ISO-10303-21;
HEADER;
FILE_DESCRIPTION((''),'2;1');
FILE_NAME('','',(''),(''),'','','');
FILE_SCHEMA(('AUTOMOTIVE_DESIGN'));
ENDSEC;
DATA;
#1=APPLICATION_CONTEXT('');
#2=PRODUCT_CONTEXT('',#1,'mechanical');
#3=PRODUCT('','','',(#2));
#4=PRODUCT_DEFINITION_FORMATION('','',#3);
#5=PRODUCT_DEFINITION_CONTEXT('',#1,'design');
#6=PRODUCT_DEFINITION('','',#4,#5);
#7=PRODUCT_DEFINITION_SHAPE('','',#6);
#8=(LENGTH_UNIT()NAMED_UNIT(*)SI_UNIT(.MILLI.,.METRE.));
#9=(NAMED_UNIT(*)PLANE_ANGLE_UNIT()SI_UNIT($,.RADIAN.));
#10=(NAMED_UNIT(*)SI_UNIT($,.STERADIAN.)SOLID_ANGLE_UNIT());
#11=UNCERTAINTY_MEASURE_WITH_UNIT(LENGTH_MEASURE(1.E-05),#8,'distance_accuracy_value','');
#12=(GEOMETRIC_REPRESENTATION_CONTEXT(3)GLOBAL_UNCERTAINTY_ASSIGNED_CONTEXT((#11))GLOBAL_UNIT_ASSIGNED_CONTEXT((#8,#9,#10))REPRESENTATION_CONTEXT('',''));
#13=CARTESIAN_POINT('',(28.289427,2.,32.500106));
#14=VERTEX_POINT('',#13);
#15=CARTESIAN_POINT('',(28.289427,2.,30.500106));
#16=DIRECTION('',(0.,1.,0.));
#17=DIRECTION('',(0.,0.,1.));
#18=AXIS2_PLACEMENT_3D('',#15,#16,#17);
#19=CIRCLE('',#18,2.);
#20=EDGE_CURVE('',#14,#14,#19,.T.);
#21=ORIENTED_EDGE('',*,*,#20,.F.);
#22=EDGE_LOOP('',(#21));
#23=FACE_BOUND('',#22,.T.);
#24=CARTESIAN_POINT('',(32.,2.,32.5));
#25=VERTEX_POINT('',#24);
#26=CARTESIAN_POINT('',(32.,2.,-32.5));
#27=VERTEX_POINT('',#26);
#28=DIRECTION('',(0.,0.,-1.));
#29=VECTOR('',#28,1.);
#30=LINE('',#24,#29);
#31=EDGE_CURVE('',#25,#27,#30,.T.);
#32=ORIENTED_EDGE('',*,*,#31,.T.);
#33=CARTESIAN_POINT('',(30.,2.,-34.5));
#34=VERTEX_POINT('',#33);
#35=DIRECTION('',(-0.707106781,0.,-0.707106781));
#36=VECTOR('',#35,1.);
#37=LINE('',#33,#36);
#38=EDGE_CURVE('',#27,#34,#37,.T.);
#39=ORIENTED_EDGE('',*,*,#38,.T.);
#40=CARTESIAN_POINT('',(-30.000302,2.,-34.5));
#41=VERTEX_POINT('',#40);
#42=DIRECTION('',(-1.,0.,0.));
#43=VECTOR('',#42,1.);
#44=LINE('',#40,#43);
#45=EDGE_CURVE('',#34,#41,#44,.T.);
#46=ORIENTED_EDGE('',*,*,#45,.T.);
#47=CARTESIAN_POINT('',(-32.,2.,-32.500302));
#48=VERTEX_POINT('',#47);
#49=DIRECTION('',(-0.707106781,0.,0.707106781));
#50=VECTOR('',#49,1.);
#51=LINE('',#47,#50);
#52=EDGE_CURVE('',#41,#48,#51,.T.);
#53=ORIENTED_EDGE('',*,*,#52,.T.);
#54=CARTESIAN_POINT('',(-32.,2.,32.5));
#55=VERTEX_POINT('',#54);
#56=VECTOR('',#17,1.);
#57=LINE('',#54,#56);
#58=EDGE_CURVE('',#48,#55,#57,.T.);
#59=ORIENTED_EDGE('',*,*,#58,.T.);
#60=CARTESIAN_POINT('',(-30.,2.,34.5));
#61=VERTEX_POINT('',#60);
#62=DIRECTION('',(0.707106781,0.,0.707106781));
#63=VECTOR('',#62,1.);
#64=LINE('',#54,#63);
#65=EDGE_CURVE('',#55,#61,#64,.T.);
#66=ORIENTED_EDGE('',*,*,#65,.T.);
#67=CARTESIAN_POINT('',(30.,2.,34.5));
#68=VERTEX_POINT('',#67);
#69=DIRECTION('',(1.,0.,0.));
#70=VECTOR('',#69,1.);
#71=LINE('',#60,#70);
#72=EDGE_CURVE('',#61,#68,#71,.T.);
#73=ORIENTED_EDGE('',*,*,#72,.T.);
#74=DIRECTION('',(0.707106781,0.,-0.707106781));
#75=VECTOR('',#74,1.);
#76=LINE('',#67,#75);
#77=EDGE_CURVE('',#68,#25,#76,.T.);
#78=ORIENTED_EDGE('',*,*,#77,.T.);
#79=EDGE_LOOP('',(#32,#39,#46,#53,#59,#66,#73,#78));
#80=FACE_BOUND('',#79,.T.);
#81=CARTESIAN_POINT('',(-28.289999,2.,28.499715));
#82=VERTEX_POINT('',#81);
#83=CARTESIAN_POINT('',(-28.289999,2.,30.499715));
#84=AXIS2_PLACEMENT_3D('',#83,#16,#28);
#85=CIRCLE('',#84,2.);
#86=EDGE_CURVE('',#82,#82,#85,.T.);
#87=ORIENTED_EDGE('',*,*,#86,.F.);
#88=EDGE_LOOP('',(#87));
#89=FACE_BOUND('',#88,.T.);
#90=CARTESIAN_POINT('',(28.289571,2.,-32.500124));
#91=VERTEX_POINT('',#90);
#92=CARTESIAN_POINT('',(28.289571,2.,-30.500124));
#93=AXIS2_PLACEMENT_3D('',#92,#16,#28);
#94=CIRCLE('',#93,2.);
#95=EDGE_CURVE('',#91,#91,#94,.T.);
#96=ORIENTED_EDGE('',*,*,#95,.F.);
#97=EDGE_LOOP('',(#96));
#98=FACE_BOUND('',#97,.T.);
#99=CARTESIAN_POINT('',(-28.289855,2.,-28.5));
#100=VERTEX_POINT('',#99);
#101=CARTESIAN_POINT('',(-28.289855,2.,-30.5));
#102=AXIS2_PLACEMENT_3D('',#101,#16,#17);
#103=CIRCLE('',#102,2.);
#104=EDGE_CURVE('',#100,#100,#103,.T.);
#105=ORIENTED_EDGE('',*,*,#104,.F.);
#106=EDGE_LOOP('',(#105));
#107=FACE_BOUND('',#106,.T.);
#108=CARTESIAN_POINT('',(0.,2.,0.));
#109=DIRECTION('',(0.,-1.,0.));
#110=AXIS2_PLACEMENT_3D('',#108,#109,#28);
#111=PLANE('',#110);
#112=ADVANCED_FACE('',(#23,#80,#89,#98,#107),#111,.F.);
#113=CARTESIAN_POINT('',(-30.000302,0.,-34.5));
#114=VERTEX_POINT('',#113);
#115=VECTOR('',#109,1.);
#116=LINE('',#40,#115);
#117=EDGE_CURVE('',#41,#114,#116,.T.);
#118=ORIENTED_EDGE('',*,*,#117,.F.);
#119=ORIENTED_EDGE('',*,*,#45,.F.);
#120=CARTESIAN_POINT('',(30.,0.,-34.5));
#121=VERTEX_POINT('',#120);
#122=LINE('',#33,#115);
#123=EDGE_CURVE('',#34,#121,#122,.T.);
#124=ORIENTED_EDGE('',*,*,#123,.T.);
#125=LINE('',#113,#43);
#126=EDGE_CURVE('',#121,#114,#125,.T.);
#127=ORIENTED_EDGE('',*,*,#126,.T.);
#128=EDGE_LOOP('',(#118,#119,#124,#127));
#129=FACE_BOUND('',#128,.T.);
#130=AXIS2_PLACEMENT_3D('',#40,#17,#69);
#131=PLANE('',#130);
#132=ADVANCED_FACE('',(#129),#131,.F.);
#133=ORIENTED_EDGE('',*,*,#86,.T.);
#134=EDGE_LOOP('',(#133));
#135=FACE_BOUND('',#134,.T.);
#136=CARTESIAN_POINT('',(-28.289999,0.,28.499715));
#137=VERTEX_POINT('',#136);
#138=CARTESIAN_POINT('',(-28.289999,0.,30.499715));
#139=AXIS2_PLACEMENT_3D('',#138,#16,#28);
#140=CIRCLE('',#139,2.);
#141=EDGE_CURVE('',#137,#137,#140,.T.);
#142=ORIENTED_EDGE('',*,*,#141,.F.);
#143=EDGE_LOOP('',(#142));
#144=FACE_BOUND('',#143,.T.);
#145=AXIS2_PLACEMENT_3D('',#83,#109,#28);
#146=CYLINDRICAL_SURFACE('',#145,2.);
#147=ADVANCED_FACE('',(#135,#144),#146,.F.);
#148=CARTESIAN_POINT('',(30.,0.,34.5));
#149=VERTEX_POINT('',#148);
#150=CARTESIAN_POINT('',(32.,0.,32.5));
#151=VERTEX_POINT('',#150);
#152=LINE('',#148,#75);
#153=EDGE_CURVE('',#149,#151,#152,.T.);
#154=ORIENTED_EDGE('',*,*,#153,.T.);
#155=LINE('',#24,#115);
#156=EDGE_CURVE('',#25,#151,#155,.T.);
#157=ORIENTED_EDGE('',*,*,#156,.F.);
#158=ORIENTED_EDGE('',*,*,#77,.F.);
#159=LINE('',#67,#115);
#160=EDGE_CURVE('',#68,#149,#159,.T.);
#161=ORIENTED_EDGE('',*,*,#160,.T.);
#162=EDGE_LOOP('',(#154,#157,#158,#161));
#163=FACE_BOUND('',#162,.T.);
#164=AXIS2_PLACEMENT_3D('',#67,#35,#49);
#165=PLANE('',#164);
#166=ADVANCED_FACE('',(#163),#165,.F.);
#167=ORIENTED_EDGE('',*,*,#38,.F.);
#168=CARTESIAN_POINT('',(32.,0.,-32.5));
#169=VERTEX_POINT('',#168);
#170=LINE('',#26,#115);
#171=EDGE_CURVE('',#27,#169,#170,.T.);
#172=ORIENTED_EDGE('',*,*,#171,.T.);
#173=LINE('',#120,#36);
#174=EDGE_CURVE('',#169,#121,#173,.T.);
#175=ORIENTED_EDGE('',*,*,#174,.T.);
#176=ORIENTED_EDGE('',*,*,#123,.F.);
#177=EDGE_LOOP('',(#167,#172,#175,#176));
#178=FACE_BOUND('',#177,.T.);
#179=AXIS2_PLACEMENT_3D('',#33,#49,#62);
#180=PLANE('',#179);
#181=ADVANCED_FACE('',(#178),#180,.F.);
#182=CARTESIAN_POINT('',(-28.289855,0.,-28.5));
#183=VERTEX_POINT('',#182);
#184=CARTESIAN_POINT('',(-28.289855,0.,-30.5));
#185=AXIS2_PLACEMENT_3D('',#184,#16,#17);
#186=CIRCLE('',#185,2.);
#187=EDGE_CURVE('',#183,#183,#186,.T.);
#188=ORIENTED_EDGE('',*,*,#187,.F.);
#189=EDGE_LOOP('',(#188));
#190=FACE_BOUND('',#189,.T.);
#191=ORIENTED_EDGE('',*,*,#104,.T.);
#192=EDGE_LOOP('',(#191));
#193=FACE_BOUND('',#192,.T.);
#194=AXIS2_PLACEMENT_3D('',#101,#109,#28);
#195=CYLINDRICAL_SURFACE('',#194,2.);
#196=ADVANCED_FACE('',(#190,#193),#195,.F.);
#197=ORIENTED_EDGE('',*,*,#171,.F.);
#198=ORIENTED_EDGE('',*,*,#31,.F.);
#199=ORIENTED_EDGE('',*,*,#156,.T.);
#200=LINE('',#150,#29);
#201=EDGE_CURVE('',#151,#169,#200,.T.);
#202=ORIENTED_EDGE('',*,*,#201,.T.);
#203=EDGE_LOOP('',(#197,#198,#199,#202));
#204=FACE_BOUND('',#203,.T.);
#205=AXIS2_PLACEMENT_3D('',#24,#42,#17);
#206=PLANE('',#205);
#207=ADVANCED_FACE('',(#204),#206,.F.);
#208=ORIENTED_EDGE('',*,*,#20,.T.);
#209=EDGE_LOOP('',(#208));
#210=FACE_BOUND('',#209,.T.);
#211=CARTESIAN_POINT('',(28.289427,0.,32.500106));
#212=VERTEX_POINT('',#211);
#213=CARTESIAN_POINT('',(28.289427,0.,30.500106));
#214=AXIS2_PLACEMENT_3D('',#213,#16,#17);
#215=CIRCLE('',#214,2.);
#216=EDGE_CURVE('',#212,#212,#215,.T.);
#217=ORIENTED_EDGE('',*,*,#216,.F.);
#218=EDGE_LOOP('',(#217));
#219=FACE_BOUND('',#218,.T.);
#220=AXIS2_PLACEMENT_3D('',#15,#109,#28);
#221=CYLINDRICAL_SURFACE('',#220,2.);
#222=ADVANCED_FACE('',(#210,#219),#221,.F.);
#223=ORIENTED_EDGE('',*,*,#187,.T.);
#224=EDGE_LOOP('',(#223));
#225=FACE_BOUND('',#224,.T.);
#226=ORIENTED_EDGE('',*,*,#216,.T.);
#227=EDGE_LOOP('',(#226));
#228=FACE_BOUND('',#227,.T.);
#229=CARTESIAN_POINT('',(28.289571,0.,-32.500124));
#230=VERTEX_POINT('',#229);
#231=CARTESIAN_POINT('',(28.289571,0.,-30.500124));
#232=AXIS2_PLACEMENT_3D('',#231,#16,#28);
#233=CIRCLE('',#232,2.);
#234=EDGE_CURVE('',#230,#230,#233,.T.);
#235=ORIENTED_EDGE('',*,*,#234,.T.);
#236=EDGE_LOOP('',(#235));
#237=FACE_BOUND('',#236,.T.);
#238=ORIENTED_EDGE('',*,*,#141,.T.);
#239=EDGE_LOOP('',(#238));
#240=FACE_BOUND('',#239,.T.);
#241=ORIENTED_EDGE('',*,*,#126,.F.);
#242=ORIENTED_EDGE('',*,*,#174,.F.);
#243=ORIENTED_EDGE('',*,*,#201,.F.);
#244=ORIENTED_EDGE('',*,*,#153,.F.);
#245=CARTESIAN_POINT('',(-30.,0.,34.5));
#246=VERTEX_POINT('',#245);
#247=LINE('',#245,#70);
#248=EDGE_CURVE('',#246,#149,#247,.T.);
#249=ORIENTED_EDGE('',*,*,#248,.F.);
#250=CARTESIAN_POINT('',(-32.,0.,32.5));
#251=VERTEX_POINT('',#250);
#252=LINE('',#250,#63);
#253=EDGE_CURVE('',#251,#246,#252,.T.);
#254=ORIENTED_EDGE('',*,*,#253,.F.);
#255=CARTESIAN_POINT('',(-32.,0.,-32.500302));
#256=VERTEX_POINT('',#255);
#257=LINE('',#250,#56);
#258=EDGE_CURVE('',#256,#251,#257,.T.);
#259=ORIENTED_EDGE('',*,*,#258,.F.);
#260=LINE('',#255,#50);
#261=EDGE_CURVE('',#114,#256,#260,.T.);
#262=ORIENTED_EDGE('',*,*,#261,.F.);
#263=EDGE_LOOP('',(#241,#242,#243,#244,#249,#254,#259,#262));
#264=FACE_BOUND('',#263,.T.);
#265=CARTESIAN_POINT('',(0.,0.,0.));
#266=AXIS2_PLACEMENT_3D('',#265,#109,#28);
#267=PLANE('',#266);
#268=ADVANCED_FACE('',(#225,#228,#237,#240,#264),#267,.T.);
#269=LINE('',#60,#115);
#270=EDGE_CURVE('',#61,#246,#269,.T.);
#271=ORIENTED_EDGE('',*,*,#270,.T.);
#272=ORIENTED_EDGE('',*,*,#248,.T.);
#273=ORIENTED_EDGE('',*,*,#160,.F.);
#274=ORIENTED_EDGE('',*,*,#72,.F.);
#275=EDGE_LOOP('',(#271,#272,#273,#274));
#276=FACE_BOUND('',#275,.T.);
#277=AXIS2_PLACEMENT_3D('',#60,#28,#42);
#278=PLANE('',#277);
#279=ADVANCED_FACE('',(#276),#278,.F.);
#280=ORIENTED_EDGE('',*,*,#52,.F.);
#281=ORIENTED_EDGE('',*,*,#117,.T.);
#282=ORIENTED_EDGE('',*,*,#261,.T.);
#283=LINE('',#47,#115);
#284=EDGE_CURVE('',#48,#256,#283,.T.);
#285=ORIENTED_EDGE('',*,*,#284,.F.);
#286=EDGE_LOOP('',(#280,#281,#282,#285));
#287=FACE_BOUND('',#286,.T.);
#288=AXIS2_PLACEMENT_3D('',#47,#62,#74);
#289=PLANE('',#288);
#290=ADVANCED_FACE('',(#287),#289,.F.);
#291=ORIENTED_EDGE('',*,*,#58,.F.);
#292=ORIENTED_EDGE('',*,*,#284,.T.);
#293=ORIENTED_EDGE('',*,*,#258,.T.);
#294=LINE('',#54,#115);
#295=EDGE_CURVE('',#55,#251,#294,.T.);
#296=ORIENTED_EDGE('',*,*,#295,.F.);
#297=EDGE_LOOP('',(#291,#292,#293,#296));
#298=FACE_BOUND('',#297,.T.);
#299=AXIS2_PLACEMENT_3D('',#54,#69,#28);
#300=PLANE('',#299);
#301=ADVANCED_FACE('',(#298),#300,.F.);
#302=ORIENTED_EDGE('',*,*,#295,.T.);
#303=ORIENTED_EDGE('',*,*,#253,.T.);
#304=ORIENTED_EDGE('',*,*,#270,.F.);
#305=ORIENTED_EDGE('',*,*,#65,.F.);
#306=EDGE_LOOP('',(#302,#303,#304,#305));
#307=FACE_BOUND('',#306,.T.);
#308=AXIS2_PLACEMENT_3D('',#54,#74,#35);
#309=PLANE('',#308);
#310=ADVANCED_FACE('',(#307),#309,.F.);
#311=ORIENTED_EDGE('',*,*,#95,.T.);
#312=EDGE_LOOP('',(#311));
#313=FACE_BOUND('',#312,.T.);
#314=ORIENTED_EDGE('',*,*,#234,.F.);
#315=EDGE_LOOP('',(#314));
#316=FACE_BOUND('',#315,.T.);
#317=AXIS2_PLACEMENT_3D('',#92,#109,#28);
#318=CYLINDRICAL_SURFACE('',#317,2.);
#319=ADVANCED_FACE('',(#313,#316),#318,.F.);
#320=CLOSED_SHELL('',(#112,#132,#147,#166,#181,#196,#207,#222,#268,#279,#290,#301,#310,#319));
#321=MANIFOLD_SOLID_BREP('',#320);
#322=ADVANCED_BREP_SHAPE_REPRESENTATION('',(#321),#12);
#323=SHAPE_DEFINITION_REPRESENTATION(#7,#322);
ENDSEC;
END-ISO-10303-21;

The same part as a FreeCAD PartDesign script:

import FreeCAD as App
import Part
import Sketcher
Q = App.Units.Quantity

doc = App.newDocument("Part")
body = doc.addObject("PartDesign::Body", "Body")

# Sketch on XZ plane
sketch1 = body.newObject("Sketcher::SketchObject", "Sketch")
sketch1.AttachmentSupport = (doc.getObject("XZ_Plane"), [""])
sketch1.MapMode = "FlatFace"
sketch1.addGeometry(Part.LineSegment(App.Vector(-30, -34.5, 0), App.Vector(-32, -32.5, 0)), False)
sketch1.addGeometry(Part.LineSegment(App.Vector(-32, -32.5, 0), App.Vector(-32, 32.5, 0)), False)
sketch1.addGeometry(Part.LineSegment(App.Vector(-32, 32.5, 0), App.Vector(-30, 34.5, 0)), False)
sketch1.addGeometry(Part.LineSegment(App.Vector(-30, 34.5, 0), App.Vector(30, 34.5, 0)), False)
sketch1.addGeometry(Part.LineSegment(App.Vector(30, 34.5, 0), App.Vector(32, 32.5, 0)), False)
sketch1.addGeometry(Part.LineSegment(App.Vector(32, 32.5, 0), App.Vector(32, -32.5, 0)), False)
sketch1.addGeometry(Part.LineSegment(App.Vector(32, -32.5, 0), App.Vector(30, -34.5, 0)), False)
sketch1.addGeometry(Part.LineSegment(App.Vector(30, -34.5, 0), App.Vector(-30, -34.5, 0)), False)
sketch1.addGeometry(Part.Circle(App.Vector(28.3, 30.5, 0), App.Vector(0, 0, 1), 2), False)
sketch1.addGeometry(Part.Circle(App.Vector(-28.3, 30.5, 0), App.Vector(0, 0, 1), 2), False)
sketch1.addGeometry(Part.Circle(App.Vector(28.3, -30.5, 0), App.Vector(0, 0, 1), 2), False)
sketch1.addGeometry(Part.Circle(App.Vector(-28.3, -30.5, 0), App.Vector(0, 0, 1), 2), False)
sketch1.addConstraint(Sketcher.Constraint("Coincident", 0, 2, 1, 1))
sketch1.addConstraint(Sketcher.Constraint("Coincident", 1, 2, 2, 1))
sketch1.addConstraint(Sketcher.Constraint("Coincident", 2, 2, 3, 1))
sketch1.addConstraint(Sketcher.Constraint("Coincident", 3, 2, 4, 1))
sketch1.addConstraint(Sketcher.Constraint("Coincident", 4, 2, 5, 1))
sketch1.addConstraint(Sketcher.Constraint("Coincident", 5, 2, 6, 1))
sketch1.addConstraint(Sketcher.Constraint("Coincident", 6, 2, 7, 1))
sketch1.addConstraint(Sketcher.Constraint("Coincident", 7, 2, 0, 1))
sketch1.addConstraint(Sketcher.Constraint("Vertical", 1))
sketch1.addConstraint(Sketcher.Constraint("Horizontal", 3))
sketch1.addConstraint(Sketcher.Constraint("Vertical", 5))
sketch1.addConstraint(Sketcher.Constraint("Horizontal", 7))
sketch1.addConstraint(Sketcher.Constraint("Equal", 8, 9))
sketch1.addConstraint(Sketcher.Constraint("Equal", 9, 10))
sketch1.addConstraint(Sketcher.Constraint("Equal", 10, 11))
sketch1.addConstraint(Sketcher.Constraint("Symmetric", 1, 2, 5, 2, -1, 1))
sketch1.addConstraint(Sketcher.Constraint("Symmetric", 2, 2, 6, 2, -1, 1))
sketch1.addConstraint(Sketcher.Constraint("Perpendicular", 0, 2))
sketch1.addConstraint(Sketcher.Constraint("Perpendicular", 2, 4))
sketch1.addConstraint(Sketcher.Constraint("Horizontal", 1, 2, 4, 2))
sketch1.addConstraint(Sketcher.Constraint("Vertical", 3, 2, 6, 2))
sketch1.addConstraint(Sketcher.Constraint("Diameter", 8, Q("4 mm")))
sketch1.addConstraint(Sketcher.Constraint("DistanceX", 3, 1, 3, 2, Q("60 mm")))
sketch1.addConstraint(Sketcher.Constraint("DistanceY", 5, 2, 5, 1, Q("65 mm")))
sketch1.addConstraint(Sketcher.Constraint("DistanceX", 0, 2, -1, 1, Q("32 mm")))
sketch1.addConstraint(Sketcher.Constraint("DistanceY", 11, 3, 1, 2, Q("63 mm")))
sketch1.addConstraint(Sketcher.Constraint("DistanceX", 9, 3, -1, 1, Q("28.289999 mm")))
sketch1.addConstraint(Sketcher.Constraint("Distance", 0, Q("2.828 mm")))
sketch1.addConstraint(Sketcher.Constraint("DistanceX", -1, 1, 10, 3, Q("28.289571 mm")))
sketch1.addConstraint(Sketcher.Constraint("DistanceY", 9, 3, 8, 3, Q("0.000391 mm")))
sketch1.addConstraint(Sketcher.Constraint("DistanceY", 10, 3, 8, 3, Q("61.00023 mm")))
sketch1.addConstraint(Sketcher.Constraint("DistanceX", 11, 3, 8, 3, Q("56.579282 mm")))
sketch1.addConstraint(Sketcher.Constraint("DistanceY", 0, 2, 10, 3, Q("2.000178 mm")))
sketch1.addConstraint(Sketcher.Constraint("DistanceX", -1, 1, 8, 3, Q("28.289427 mm")))
pad1 = body.newObject("PartDesign::Pad", "Pad")
pad1.Profile = sketch1
pad1.Length = 2
pad1.Reversed = True

doc.recompute()
